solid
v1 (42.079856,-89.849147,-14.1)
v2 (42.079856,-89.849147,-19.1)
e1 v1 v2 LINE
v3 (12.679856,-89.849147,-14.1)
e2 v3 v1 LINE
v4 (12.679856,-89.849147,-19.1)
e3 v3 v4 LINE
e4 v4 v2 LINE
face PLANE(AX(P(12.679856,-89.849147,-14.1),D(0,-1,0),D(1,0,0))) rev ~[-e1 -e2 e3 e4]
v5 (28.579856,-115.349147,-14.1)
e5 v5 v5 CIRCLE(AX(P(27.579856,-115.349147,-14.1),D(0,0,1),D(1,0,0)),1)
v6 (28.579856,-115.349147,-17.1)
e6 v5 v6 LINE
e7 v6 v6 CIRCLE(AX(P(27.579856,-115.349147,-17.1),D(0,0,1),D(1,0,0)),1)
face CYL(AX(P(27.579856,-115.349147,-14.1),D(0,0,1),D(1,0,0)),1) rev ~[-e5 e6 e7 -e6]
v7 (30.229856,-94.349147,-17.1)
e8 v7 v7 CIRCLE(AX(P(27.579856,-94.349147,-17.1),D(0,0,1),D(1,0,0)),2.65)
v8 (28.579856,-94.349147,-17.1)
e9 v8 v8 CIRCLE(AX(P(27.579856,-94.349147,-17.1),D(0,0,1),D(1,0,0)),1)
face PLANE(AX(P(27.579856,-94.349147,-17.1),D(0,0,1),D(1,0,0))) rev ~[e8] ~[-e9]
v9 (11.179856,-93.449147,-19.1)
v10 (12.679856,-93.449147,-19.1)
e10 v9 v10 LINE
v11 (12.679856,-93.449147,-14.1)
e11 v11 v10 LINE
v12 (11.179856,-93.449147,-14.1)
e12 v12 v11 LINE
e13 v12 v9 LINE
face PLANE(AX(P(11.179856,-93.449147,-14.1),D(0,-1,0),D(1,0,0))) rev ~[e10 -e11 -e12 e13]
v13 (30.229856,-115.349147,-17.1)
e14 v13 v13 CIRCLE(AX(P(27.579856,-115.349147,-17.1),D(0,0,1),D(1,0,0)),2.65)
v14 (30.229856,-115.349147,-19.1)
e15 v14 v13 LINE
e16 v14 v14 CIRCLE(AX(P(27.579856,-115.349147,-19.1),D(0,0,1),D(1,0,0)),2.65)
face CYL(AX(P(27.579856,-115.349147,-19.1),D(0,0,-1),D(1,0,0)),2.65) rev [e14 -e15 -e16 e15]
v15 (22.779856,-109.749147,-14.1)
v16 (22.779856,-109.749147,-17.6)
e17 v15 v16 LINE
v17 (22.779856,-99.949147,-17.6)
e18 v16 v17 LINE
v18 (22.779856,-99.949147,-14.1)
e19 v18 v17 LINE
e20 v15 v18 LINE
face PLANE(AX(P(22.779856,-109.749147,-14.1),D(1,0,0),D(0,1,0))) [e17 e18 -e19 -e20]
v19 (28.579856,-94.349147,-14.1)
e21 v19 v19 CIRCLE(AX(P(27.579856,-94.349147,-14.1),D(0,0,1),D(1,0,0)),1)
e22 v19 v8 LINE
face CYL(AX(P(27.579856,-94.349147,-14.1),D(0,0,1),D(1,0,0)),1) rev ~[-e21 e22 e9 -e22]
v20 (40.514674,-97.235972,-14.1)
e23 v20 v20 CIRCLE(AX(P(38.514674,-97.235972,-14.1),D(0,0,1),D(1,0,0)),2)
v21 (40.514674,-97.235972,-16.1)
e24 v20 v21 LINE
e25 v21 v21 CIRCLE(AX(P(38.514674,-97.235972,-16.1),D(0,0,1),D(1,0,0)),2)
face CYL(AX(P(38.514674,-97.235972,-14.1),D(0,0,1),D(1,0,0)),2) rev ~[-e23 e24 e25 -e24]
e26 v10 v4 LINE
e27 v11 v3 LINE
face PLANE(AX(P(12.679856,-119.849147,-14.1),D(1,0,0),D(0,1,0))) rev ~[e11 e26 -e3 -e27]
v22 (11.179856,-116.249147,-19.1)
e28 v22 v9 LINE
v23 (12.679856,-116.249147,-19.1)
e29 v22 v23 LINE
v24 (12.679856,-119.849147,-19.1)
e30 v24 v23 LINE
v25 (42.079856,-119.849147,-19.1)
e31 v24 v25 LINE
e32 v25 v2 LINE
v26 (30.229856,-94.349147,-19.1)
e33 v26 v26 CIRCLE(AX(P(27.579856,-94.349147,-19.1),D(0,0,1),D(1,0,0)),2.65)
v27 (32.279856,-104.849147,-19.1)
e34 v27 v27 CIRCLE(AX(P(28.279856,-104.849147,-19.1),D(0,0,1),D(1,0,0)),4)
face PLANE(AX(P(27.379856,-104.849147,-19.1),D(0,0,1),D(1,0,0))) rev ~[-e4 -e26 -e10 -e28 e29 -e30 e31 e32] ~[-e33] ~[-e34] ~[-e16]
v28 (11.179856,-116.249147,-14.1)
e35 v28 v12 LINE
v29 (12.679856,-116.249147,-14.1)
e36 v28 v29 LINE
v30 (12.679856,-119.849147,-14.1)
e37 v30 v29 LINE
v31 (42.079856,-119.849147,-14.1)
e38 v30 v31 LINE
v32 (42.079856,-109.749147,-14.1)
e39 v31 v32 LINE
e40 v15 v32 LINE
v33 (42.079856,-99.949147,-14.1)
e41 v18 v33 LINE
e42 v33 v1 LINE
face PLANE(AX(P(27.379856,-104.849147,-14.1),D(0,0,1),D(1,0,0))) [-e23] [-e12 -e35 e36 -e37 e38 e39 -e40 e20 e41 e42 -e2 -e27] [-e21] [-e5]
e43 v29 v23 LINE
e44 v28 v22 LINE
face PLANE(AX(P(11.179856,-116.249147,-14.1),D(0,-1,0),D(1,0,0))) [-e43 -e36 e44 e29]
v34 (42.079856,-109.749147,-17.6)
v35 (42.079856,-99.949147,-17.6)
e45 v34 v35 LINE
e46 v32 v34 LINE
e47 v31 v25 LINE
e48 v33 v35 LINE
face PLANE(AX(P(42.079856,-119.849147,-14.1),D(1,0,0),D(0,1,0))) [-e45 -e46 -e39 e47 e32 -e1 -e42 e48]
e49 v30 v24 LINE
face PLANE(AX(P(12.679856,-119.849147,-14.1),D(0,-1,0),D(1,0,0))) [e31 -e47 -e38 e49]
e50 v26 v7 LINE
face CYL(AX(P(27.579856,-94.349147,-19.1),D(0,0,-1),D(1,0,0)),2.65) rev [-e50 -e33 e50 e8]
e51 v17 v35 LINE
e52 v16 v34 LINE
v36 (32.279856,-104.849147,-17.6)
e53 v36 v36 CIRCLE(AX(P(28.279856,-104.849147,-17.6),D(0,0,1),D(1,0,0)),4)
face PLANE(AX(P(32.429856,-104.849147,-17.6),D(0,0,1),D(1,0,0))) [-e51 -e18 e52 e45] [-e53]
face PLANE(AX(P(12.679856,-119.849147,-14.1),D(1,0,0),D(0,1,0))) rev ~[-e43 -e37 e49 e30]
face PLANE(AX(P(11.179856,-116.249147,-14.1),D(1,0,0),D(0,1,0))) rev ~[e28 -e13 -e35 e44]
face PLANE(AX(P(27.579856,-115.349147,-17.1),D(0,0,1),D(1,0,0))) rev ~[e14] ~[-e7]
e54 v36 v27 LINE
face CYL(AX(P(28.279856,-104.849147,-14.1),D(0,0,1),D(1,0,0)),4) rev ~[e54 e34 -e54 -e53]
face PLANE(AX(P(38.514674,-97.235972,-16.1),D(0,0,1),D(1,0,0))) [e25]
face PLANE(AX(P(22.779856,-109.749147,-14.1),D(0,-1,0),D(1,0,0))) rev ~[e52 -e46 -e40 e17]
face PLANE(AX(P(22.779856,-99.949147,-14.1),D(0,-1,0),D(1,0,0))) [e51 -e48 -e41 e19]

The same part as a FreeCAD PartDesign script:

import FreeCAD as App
import Part
import Sketcher
from FreeCAD import Vector

doc = App.newDocument("Part")
body = doc.addObject("PartDesign::Body", "Body")

sketch1 = doc.addObject("Sketcher::SketchObject", "Sketch")
body.addObject(sketch1)
sketch1.AttachmentSupport = (doc.XY_Plane, [""])
sketch1.MapMode = "FlatFace"
sketch1.AttachmentOffset = App.Placement(Vector(0, 0, -14.1), App.Rotation())
sketch1.addGeometry(Part.Circle(Vector(38.514674, -97.235972, 0), Vector(0, 0, 1), 2), False)
sketch1.addConstraint([
    Sketcher.Constraint("Diameter", 0, 4.0),
    Sketcher.Constraint("DistanceX", -1, 1, 0, 3, 38.514674),
    Sketcher.Constraint("DistanceY", 0, 3, -1, 1, 97.235972),
])
pad1 = doc.addObject("PartDesign::Pad", "Pad")
body.addObject(pad1)
pad1.Profile = sketch1
pad1.Length = 2
pad1.Reversed = True
body2 = doc.addObject("PartDesign::Body", "Body001")

sketch2 = doc.addObject("Sketcher::SketchObject", "Sketch001")
body2.addObject(sketch2)
sketch2.AttachmentSupport = (doc.getObject("XY_Plane001"), [""])
sketch2.MapMode = "FlatFace"
sketch2.AttachmentOffset = App.Placement(Vector(0, 0, -14.1), App.Rotation())
sketch2.addGeometry(Part.Circle(Vector(27.579856, -94.349147, 0), Vector(0, 0, 1), 1), False)
sketch2.addConstraint([
    Sketcher.Constraint("Diameter", 0, 2.0),
    Sketcher.Constraint("DistanceX", -1, 1, 0, 3, 27.579856),
    Sketcher.Constraint("DistanceY", 0, 3, -1, 1, 94.349147),
])
pad2 = doc.addObject("PartDesign::Pad", "Pad001")
body2.addObject(pad2)
pad2.Profile = sketch2
pad2.Length = 5
pad2.Reversed = True
body3 = doc.addObject("PartDesign::Body", "Body002")

sketch3 = doc.addObject("Sketcher::SketchObject", "Sketch002")
body3.addObject(sketch3)
sketch3.AttachmentSupport = (doc.getObject("XY_Plane002"), [""])
sketch3.MapMode = "FlatFace"
sketch3.AttachmentOffset = App.Placement(Vector(0, 0, -14.1), App.Rotation())
sketch3.addGeometry(Part.Circle(Vector(27.579856, -115.349147, 0), Vector(0, 0, 1), 1), False)
sketch3.addConstraint([
    Sketcher.Constraint("Diameter", 0, 2.0),
    Sketcher.Constraint("DistanceX", -1, 1, 0, 3, 27.579856),
    Sketcher.Constraint("DistanceY", 0, 3, -1, 1, 115.349147),
])
pad3 = doc.addObject("PartDesign::Pad", "Pad002")
body3.addObject(pad3)
pad3.Profile = sketch3
pad3.Length = 5
pad3.Reversed = True
body4 = doc.addObject("PartDesign::Body", "Body003")

sketch4 = doc.addObject("Sketcher::SketchObject", "Sketch003")
body4.addObject(sketch4)
sketch4.AttachmentSupport = (doc.getObject("XY_Plane003"), [""])
sketch4.MapMode = "FlatFace"
sketch4.AttachmentOffset = App.Placement(Vector(0, 0, -14.1), App.Rotation())
sketch4.addGeometry(Part.Circle(Vector(28.279856, -104.849147, 0), Vector(0, 0, 1), 4), False)
sketch4.addConstraint([
    Sketcher.Constraint("Diameter", 0, 8.0),
    Sketcher.Constraint("DistanceX", -1, 1, 0, 3, 28.279856),
    Sketcher.Constraint("DistanceY", 0, 3, -1, 1, 104.849147),
])
pad4 = doc.addObject("PartDesign::Pad", "Pad003")
body4.addObject(pad4)
pad4.Profile = sketch4
pad4.Length = 5
pad4.Reversed = True
body5 = doc.addObject("PartDesign::Body", "Body004")

sketch5 = doc.addObject("Sketcher::SketchObject", "Sketch004")
body5.addObject(sketch5)
sketch5.AttachmentSupport = (doc.getObject("XY_Plane004"), [""])
sketch5.MapMode = "FlatFace"
sketch5.AttachmentOffset = App.Placement(Vector(0, 0, -19.1), App.Rotation())
sketch5.addGeometry(Part.Circle(Vector(27.579856, -94.349147, 0), Vector(0, 0, 1), 2.65), False)
sketch5.addConstraint([
    Sketcher.Constraint("Diameter", 0, 5.3),
    Sketcher.Constraint("DistanceX", -1, 1, 0, 3, 27.579856),
    Sketcher.Constraint("DistanceY", 0, 3, -1, 1, 94.349147),
])
pad5 = doc.addObject("PartDesign::Pad", "Pad004")
body5.addObject(pad5)
pad5.Profile = sketch5
pad5.Length = 2
body6 = doc.addObject("PartDesign::Body", "Body005")

sketch6 = doc.addObject("Sketcher::SketchObject", "Sketch005")
body6.addObject(sketch6)
sketch6.AttachmentSupport = (doc.getObject("XY_Plane005"), [""])
sketch6.MapMode = "FlatFace"
sketch6.AttachmentOffset = App.Placement(Vector(0, 0, -19.1), App.Rotation())
sketch6.addGeometry(Part.Circle(Vector(27.579856, -115.349147, 0), Vector(0, 0, 1), 2.65), False)
sketch6.addConstraint([
    Sketcher.Constraint("Diameter", 0, 5.3),
    Sketcher.Constraint("DistanceX", -1, 1, 0, 3, 27.579856),
    Sketcher.Constraint("DistanceY", 0, 3, -1, 1, 115.349147),
])
pad6 = doc.addObject("PartDesign::Pad", "Pad005")
body6.addObject(pad6)
pad6.Profile = sketch6
pad6.Length = 2
body7 = doc.addObject("PartDesign::Body", "Body006")

sketch7 = doc.addObject("Sketcher::SketchObject", "Sketch006")
body7.addObject(sketch7)
sketch7.AttachmentSupport = (doc.getObject("XY_Plane006"), [""])
sketch7.MapMode = "FlatFace"
sketch7.AttachmentOffset = App.Placement(Vector(0, 0, -14.1), App.Rotation())
sketch7.addGeometry([
    Part.LineSegment(Vector(22.779856, -99.949147, 0), Vector(22.779856, -109.749147, 0)),
    Part.LineSegment(Vector(22.779856, -109.749147, 0), Vector(42.079856, -109.749147, 0)),
    Part.LineSegment(Vector(42.079856, -109.749147, 0), Vector(42.079856, -99.949147, 0)),
    Part.LineSegment(Vector(42.079856, -99.949147, 0), Vector(22.779856, -99.949147, 0)),
], False)
sketch7.addConstraint([
    Sketcher.Constraint("Coincident", 0, 2, 1, 1),
    Sketcher.Constraint("Coincident", 1, 2, 2, 1),
    Sketcher.Constraint("Coincident", 2, 2, 3, 1),
    Sketcher.Constraint("Coincident", 3, 2, 0, 1),
    Sketcher.Constraint("Vertical", 0),
    Sketcher.Constraint("Horizontal", 1),
    Sketcher.Constraint("Vertical", 2),
    Sketcher.Constraint("Horizontal", 3),
    Sketcher.Constraint("DistanceX", 1, 1, 1, 2, 19.3),
    Sketcher.Constraint("DistanceY", 0, 2, 0, 1, 9.8),
    Sketcher.Constraint("DistanceX", -1, 1, 0, 2, 22.779856),
    Sketcher.Constraint("DistanceY", 0, 2, -1, 1, 109.749147),
])
pad7 = doc.addObject("PartDesign::Pad", "Pad006")
body7.addObject(pad7)
pad7.Profile = sketch7
pad7.Length = 3.5
pad7.Reversed = True
body8 = doc.addObject("PartDesign::Body", "Body007")

sketch8 = doc.addObject("Sketcher::SketchObject", "Sketch007")
body8.addObject(sketch8)
sketch8.AttachmentSupport = (doc.getObject("XY_Plane007"), [""])
sketch8.MapMode = "FlatFace"
sketch8.AttachmentOffset = App.Placement(Vector(0, 0, -14.1), App.Rotation())
sketch8.addGeometry([
    Part.LineSegment(Vector(12.679856, -89.849147, 0), Vector(12.679856, -119.849147, 0)),
    Part.LineSegment(Vector(12.679856, -119.849147, 0), Vector(42.079856, -119.849147, 0)),
    Part.LineSegment(Vector(42.079856, -119.849147, 0), Vector(42.079856, -89.849147, 0)),
    Part.LineSegment(Vector(42.079856, -89.849147, 0), Vector(12.679856, -89.849147, 0)),
], False)
sketch8.addConstraint([
    Sketcher.Constraint("Coincident", 0, 2, 1, 1),
    Sketcher.Constraint("Coincident", 1, 2, 2, 1),
    Sketcher.Constraint("Coincident", 2, 2, 3, 1),
    Sketcher.Constraint("Coincident", 3, 2, 0, 1),
    Sketcher.Constraint("Vertical", 0),
    Sketcher.Constraint("Horizontal", 1),
    Sketcher.Constraint("Vertical", 2),
    Sketcher.Constraint("Horizontal", 3),
    Sketcher.Constraint("DistanceY", 0, 2, 0, 1, 30.0),
    Sketcher.Constraint("DistanceX", 1, 1, 1, 2, 29.4),
    Sketcher.Constraint("DistanceX", -1, 1, 0, 2, 12.679856),
    Sketcher.Constraint("DistanceY", 0, 2, -1, 1, 119.849147),
])
pad8 = doc.addObject("PartDesign::Pad", "Pad007")
body8.addObject(pad8)
pad8.Profile = sketch8
pad8.Length = 5
pad8.Reversed = True
doc.recompute()

boolean = doc.addObject("PartDesign::Boolean", "Boolean")
body8.addObject(boolean)
boolean.Type = "Cut"
boolean.addObjects([body7])
doc.recompute()

boolean2 = doc.addObject("PartDesign::Boolean", "Boolean001")
body8.addObject(boolean2)
boolean2.Type = "Cut"
boolean2.addObjects([body6])
doc.recompute()

boolean3 = doc.addObject("PartDesign::Boolean", "Boolean002")
body8.addObject(boolean3)
boolean3.Type = "Cut"
boolean3.addObjects([body5])
doc.recompute()

boolean4 = doc.addObject("PartDesign::Boolean", "Boolean003")
body8.addObject(boolean4)
boolean4.Type = "Cut"
boolean4.addObjects([body4])
doc.recompute()

boolean5 = doc.addObject("PartDesign::Boolean", "Boolean004")
body8.addObject(boolean5)
boolean5.Type = "Cut"
boolean5.addObjects([body3])
doc.recompute()

boolean6 = doc.addObject("PartDesign::Boolean", "Boolean005")
body8.addObject(boolean6)
boolean6.Type = "Cut"
boolean6.addObjects([body2])
doc.recompute()

boolean7 = doc.addObject("PartDesign::Boolean", "Boolean006")
body8.addObject(boolean7)
boolean7.Type = "Cut"
boolean7.addObjects([body])
body9 = doc.addObject("PartDesign::Body", "Body008")

sketch9 = doc.addObject("Sketcher::SketchObject", "Sketch008")
body9.addObject(sketch9)
sketch9.AttachmentSupport = (doc.getObject("XY_Plane008"), [""])
sketch9.MapMode = "FlatFace"
sketch9.AttachmentOffset = App.Placement(Vector(0, 0, -14.1), App.Rotation())
sketch9.addGeometry([
    Part.LineSegment(Vector(11.179856, -93.449147, 0), Vector(11.179856, -116.249147, 0)),
    Part.LineSegment(Vector(11.179856, -116.249147, 0), Vector(12.679856, -116.249147, 0)),
    Part.LineSegment(Vector(12.679856, -116.249147, 0), Vector(12.679856, -93.449147, 0)),
    Part.LineSegment(Vector(12.679856, -93.449147, 0), Vector(11.179856, -93.449147, 0)),
], False)
sketch9.addConstraint([
    Sketcher.Constraint("Coincident", 0, 2, 1, 1),
    Sketcher.Constraint("Coincident", 1, 2, 2, 1),
    Sketcher.Constraint("Coincident", 2, 2, 3, 1),
    Sketcher.Constraint("Coincident", 3, 2, 0, 1),
    Sketcher.Constraint("Vertical", 0),
    Sketcher.Constraint("Horizontal", 1),
    Sketcher.Constraint("Vertical", 2),
    Sketcher.Constraint("Horizontal", 3),
    Sketcher.Constraint("DistanceX", 1, 1, 1, 2, 1.5),
    Sketcher.Constraint("DistanceY", 0, 2, 0, 1, 22.8),
    Sketcher.Constraint("DistanceX", -1, 1, 0, 2, 11.179856),
    Sketcher.Constraint("DistanceY", 0, 2, -1, 1, 116.249147),
])
pad9 = doc.addObject("PartDesign::Pad", "Pad008")
body9.addObject(pad9)
pad9.Profile = sketch9
pad9.Length = 5
pad9.Reversed = True
doc.recompute()

boolean8 = doc.addObject("PartDesign::Boolean", "Boolean007")
body9.addObject(boolean8)
boolean8.Type = "Fuse"
boolean8.addObjects([body8])

doc.recompute()
